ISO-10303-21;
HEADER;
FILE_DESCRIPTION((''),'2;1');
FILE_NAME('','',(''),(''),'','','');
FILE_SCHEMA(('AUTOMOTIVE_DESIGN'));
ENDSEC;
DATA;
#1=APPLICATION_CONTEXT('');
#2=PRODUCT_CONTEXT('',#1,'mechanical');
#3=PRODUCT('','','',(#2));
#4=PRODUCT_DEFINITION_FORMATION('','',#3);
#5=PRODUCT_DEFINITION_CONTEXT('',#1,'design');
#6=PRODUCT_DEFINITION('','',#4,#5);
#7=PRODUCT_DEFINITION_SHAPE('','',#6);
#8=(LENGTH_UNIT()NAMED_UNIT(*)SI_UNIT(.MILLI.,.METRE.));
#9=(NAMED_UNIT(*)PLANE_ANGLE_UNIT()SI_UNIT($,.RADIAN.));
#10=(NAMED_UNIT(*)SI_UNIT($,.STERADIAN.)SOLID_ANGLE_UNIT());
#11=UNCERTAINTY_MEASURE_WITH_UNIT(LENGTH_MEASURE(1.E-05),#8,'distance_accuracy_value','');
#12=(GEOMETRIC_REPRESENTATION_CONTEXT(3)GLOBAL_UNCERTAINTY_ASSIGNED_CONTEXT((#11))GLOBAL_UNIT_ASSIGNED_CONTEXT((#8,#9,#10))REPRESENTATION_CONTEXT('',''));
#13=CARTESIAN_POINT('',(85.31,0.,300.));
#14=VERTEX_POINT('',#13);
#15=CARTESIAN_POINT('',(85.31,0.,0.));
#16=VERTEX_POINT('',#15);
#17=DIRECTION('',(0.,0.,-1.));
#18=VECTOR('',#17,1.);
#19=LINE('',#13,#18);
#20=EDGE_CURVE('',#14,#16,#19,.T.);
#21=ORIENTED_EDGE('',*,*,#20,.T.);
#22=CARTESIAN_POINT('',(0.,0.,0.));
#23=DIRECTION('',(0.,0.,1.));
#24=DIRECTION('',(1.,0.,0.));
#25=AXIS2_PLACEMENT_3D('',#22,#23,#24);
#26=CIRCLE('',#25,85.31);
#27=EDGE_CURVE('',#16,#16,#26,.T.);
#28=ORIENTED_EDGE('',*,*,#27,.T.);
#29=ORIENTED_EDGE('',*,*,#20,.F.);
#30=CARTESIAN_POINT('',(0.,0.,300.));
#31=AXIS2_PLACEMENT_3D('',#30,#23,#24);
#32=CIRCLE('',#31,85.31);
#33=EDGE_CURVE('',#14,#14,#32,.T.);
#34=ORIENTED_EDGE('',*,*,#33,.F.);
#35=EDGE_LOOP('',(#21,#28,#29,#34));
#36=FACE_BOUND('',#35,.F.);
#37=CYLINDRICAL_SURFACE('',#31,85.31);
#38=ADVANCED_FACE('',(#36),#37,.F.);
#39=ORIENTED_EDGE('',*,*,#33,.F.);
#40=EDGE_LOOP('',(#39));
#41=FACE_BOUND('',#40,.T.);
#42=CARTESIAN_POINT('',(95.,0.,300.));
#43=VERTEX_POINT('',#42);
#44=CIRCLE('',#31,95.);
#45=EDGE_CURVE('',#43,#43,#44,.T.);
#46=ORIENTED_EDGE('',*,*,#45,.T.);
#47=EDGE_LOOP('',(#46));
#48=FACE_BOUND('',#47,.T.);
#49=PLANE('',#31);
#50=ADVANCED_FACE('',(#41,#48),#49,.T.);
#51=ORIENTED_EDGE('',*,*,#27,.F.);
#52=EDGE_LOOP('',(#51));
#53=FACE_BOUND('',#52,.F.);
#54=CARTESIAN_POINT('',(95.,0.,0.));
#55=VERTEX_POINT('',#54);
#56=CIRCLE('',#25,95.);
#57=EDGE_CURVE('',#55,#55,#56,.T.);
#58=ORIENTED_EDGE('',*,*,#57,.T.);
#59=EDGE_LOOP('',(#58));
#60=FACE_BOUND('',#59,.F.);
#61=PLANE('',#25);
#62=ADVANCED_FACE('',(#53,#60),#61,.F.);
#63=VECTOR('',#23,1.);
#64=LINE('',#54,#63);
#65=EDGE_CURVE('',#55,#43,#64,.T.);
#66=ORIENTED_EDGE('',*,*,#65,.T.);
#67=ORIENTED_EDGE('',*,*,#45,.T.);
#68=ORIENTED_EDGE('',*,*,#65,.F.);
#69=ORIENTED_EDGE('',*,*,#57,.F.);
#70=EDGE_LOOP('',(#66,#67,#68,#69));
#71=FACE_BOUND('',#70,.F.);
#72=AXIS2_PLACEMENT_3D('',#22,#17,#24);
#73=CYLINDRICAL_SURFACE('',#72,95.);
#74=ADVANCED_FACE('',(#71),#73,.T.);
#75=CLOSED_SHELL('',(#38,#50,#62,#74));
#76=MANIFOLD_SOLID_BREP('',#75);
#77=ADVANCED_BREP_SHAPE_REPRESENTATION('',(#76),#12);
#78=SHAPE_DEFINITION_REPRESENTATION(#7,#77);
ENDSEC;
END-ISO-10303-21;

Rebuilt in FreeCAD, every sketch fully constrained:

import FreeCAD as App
import Part
import Sketcher
from FreeCAD import Vector
Q = App.Units.Quantity

doc = App.newDocument("Part")
params = doc.addObject("Spreadsheet::Sheet", "Params")
for row, (alias, value) in enumerate([
    ("sketch1_diameter", "190 mm"),
    ("pad1_length", "300 mm"),
    ("sketch2_diameter", "170.62 mm"),
    ("pocket1_length", "3000 mm"),
], start=1):
    params.set(f"A{row}", alias)
    params.set(f"B{row}", "=" + value)
    params.setAlias(f"B{row}", alias)

body = doc.addObject("PartDesign::Body", "Body")

# Sketch on XY plane
sketch1 = body.newObject("Sketcher::SketchObject", "Sketch")
sketch1.AttachmentSupport = (doc.getObject("XY_Plane"), [""])
sketch1.MapMode = "FlatFace"
sketch1.addGeometry(Part.Circle(Vector(0, 0, 0), Vector(0, 0, 1), 95), False)
sketch1.addConstraint([
    Sketcher.Constraint("Coincident", 0, 3, -1, 1),
    Sketcher.Constraint("Diameter", 0, Q("190 mm")),
])
sketch1.setExpression("Constraints[1]", "Params.sketch1_diameter")
pad1 = body.newObject("PartDesign::Pad", "Pad")
pad1.Profile = sketch1
pad1.setExpression("Length", "Params.pad1_length")

# Sketch on XY plane
sketch2 = body.newObject("Sketcher::SketchObject", "Sketch001")
sketch2.AttachmentSupport = (doc.getObject("XY_Plane"), [""])
sketch2.MapMode = "FlatFace"
sketch2.AttachmentOffset = App.Placement(Vector(0, 0, 300), App.Rotation())
sketch2.addGeometry(Part.Circle(Vector(0, 0, 0), Vector(0, 0, 1), 85), False)
sketch2.addConstraint([
    Sketcher.Constraint("Coincident", 0, 3, -1, 1),
    Sketcher.Constraint("Diameter", 0, Q("170.62 mm")),
])
sketch2.setExpression("Constraints[1]", "Params.sketch2_diameter")
pocket1 = body.newObject("PartDesign::Pocket", "Pocket")
pocket1.Profile = sketch2
pocket1.setExpression("Length", "Params.pocket1_length")

doc.recompute()
